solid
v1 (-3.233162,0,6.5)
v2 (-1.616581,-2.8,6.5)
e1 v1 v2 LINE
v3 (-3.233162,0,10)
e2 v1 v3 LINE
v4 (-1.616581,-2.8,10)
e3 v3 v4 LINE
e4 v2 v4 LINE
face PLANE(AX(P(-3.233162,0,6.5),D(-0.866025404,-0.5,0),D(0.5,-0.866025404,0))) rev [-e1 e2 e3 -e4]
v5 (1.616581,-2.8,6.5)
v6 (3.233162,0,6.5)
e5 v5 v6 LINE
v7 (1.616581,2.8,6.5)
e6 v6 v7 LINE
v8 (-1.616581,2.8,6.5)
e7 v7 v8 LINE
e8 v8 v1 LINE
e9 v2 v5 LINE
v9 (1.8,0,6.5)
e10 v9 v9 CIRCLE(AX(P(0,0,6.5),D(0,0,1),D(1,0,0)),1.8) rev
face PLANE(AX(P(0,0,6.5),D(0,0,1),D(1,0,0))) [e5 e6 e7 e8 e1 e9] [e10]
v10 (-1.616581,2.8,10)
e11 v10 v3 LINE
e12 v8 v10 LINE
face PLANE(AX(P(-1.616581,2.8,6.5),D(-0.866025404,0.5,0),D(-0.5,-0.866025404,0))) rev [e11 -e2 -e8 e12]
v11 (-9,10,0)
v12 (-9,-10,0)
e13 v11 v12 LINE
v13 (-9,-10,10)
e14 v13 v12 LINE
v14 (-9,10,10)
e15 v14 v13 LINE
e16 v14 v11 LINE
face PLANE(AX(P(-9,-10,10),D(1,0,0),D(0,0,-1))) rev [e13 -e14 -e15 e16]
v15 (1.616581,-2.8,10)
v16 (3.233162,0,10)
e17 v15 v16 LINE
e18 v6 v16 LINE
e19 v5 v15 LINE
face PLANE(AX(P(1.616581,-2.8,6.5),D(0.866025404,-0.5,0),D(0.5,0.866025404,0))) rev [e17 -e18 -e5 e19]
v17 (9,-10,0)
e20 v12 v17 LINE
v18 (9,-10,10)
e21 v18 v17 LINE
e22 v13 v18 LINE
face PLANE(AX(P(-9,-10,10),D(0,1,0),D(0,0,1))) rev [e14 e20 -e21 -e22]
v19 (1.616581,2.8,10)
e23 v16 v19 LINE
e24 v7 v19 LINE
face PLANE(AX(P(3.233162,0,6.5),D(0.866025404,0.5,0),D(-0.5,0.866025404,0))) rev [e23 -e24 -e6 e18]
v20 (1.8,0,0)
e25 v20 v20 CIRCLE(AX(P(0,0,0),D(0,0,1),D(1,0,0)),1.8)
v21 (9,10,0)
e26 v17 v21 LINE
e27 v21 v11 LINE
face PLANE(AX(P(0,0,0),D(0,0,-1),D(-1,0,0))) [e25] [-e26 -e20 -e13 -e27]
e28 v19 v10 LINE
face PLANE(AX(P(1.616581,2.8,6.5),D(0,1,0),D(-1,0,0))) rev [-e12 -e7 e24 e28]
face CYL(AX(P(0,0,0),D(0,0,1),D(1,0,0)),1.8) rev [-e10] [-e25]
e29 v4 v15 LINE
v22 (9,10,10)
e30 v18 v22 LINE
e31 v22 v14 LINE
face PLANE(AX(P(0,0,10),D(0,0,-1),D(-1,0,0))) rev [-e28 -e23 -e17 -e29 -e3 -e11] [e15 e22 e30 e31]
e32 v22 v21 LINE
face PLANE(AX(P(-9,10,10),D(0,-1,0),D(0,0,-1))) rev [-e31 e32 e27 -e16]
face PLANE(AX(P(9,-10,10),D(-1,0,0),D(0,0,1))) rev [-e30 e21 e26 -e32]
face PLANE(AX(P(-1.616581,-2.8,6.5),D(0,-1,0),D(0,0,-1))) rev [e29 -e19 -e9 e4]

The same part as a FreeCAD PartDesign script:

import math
import FreeCAD as App
import Part
import Sketcher

V = App.Vector
Q = App.Units.Quantity


def add_polygon(sketch, points):
    """Adds a closed chain of lines whose ends are joined by coincident constraints."""
    first, n = sketch.GeometryCount, len(points)
    for a, b in zip(points, points[1:] + points[:1]):
        sketch.addGeometry(Part.LineSegment(App.Vector(*a, 0), App.Vector(*b, 0)), False)
    for i in range(n):
        sketch.addConstraint(Sketcher.Constraint("Coincident", first + i, 2, first + (i + 1) % n, 1))

doc = App.newDocument("Part")
body = doc.addObject("PartDesign::Body", "Body")

# Sketch on XY plane
sketch1 = body.newObject("Sketcher::SketchObject", "Sketch")
sketch1.AttachmentSupport = (doc.getObject("XY_Plane"), [""])
sketch1.MapMode = "FlatFace"
add_polygon(sketch1, [(-9, 10), (-9, -10), (9, -10), (9, 10)])  # lines 0-3
sketch1.addConstraint([
    Sketcher.Constraint("Vertical", 0),
    Sketcher.Constraint("Horizontal", 1),
    Sketcher.Constraint("Vertical", 2),
    Sketcher.Constraint("Horizontal", 3),
    Sketcher.Constraint("Symmetric", 0, 2, 2, 2, -1, 1),
    Sketcher.Constraint("DistanceX", 1, 1, 1, 2, 18.0),
    Sketcher.Constraint("DistanceY", 0, 2, 0, 1, 20.0),
])
pad1 = body.newObject("PartDesign::Pad", "Pad")
pad1.Profile = sketch1
pad1.Length = 10

# Sketch on XY plane
sketch2 = body.newObject("Sketcher::SketchObject", "Sketch001")
sketch2.AttachmentSupport = (doc.getObject("XY_Plane"), [""])
sketch2.MapMode = "FlatFace"
sketch2.AttachmentOffset = App.Placement(V(0, 0, 10), App.Rotation())
sketch2.addGeometry([
    Part.ArcOfCircle(Part.Circle(V(0, 0, 0), V(0, 0, 1), 1.8), math.radians(0), math.radians(48)),
    Part.ArcOfCircle(Part.Circle(V(0, 0, 0), V(0, 0, 1), 1.8), math.radians(48), math.radians(228)),
    Part.ArcOfCircle(Part.Circle(V(0, 0, 0), V(0, 0, 1), 1.8), math.radians(-132), math.radians(0)),
], False)
sketch2.addConstraint([
    Sketcher.Constraint("Tangent", 0, 2, 1, 1),
    Sketcher.Constraint("Tangent", 1, 2, 2, 1),
    Sketcher.Constraint("Tangent", 2, 2, 0, 1),
    Sketcher.Constraint("Coincident", 0, 3, -1, 1),
    Sketcher.Constraint("PointOnObject", 2, 2, -1),
    Sketcher.Constraint("Radius", 0, 1.8),
    Sketcher.Constraint("DistanceY", -1, 1, 0, 2, 1.337929),
    Sketcher.Constraint("DistanceY", 1, 2, -1, 1, 1.337929),
])
pocket1 = body.newObject("PartDesign::Pocket", "Pocket")
pocket1.Profile = sketch2
pocket1.Type = "ThroughAll"

# Sketch on XY plane
sketch3 = body.newObject("Sketcher::SketchObject", "Sketch002")
sketch3.AttachmentSupport = (doc.getObject("XY_Plane"), [""])
sketch3.MapMode = "FlatFace"
sketch3.AttachmentOffset = App.Placement(V(0, 0, 10), App.Rotation())
add_polygon(sketch3, [(1.6, 2.8), (-1.6, 2.8), (-3.2, 0), (-1.6, -2.8), (1.6, -2.8), (3.2, 0)])  # lines 0-5
sketch3.addConstraint([
    Sketcher.Constraint("Horizontal", 0),
    Sketcher.Constraint("Horizontal", 3),
    Sketcher.Constraint("Symmetric", 0, 2, 3, 2, -1, 1),
    Sketcher.Constraint("Symmetric", 1, 2, 4, 2, -1, 1),
    Sketcher.Constraint("PointOnObject", 1, 2, -1),
    Sketcher.Constraint("Parallel", 2, 5),
    Sketcher.Constraint("Vertical", 0, 2, 2, 2),
    Sketcher.Constraint("Angle", 1, Q("-120 deg")),
    Sketcher.Constraint("DistanceY", -1, 1, 0, 2, 2.8),
    Sketcher.Constraint("DistanceX", 0, 2, 0, 1, 3.233162),
])
pocket2 = body.newObject("PartDesign::Pocket", "Pocket001")
pocket2.Profile = sketch3
pocket2.Length = 3.5

doc.recompute()
